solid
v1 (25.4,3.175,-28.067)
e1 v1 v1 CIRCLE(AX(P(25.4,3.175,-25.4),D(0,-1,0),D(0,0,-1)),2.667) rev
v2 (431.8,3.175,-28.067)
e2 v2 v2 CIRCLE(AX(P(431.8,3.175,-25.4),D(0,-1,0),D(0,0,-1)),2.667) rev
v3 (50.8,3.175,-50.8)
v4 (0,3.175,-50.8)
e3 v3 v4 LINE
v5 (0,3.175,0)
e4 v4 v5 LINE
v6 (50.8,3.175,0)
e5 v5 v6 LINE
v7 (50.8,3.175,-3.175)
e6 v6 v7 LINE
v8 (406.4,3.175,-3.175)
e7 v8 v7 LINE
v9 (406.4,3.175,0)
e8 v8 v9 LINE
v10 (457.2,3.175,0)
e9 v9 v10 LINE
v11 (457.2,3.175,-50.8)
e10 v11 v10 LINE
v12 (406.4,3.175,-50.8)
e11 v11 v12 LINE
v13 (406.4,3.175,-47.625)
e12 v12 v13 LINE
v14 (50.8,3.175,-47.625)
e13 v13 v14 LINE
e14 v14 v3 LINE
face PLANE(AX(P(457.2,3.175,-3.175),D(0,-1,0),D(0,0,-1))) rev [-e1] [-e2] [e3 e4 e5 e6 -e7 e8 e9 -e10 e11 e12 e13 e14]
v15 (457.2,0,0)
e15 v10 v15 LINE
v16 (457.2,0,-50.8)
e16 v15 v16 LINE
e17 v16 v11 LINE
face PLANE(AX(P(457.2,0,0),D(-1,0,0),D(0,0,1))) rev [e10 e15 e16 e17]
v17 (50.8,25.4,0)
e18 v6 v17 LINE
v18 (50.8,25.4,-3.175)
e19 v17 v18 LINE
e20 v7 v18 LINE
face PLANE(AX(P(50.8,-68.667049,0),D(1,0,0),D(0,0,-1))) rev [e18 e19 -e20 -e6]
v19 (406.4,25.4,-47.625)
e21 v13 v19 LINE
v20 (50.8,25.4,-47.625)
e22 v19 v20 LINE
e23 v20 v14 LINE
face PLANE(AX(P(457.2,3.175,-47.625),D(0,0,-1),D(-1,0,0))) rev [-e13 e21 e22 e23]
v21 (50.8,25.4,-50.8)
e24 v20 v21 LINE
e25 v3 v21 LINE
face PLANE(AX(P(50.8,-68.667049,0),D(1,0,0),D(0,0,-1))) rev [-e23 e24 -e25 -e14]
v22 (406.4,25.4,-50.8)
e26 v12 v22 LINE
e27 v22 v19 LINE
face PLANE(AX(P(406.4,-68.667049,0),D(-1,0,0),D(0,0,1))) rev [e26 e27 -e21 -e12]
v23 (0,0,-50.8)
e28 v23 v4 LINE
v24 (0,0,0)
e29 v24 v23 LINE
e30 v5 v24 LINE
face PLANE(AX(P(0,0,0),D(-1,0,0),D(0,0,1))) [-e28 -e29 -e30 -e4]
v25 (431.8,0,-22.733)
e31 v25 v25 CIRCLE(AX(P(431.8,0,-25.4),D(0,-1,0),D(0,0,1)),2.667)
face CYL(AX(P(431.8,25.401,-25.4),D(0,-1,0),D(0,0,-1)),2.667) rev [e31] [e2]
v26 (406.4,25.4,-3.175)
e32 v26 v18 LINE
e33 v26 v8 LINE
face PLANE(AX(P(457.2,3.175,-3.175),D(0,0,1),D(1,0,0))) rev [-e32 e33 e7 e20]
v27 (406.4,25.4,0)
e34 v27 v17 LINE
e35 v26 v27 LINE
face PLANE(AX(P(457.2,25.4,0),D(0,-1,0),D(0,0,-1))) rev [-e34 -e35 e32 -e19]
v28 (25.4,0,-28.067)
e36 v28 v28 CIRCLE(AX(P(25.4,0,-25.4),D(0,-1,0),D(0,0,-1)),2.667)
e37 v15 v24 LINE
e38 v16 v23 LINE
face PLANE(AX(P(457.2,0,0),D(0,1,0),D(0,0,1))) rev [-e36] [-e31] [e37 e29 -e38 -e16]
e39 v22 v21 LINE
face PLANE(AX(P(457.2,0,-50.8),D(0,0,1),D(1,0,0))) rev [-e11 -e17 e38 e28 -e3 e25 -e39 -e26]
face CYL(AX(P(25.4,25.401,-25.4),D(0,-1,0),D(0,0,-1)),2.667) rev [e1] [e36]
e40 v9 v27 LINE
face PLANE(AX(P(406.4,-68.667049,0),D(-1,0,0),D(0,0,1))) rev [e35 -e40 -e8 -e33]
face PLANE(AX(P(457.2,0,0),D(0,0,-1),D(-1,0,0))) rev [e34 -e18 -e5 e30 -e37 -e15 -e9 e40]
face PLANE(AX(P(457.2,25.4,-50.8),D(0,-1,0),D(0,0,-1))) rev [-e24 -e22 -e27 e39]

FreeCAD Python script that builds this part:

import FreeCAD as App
import Part
import Sketcher
Q = App.Units.Quantity


def add_polygon(sketch, points):
    """Adds a closed chain of lines whose ends are joined by coincident constraints."""
    first, n = sketch.GeometryCount, len(points)
    for a, b in zip(points, points[1:] + points[:1]):
        sketch.addGeometry(Part.LineSegment(App.Vector(*a, 0), App.Vector(*b, 0)), False)
    for i in range(n):
        sketch.addConstraint(Sketcher.Constraint("Coincident", first + i, 2, first + (i + 1) % n, 1))

doc = App.newDocument("Part")
body = doc.addObject("PartDesign::Body", "Body")

# Sketch on YZ plane
sketch1 = body.newObject("Sketcher::SketchObject", "Sketch")
sketch1.AttachmentSupport = (doc.getObject("YZ_Plane"), [""])
sketch1.MapMode = "FlatFace"
add_polygon(sketch1, [(3.175, -3.175), (25.4, -3.175), (25.4, 0), (0, 0), (0, -50.8), (25.4, -50.8), (25.4, -47.625), (3.175, -47.625)])  # lines 0-7
sketch1.addConstraint([
    Sketcher.Constraint("Horizontal", 0),
    Sketcher.Constraint("Vertical", 1),
    Sketcher.Constraint("Horizontal", 2),
    Sketcher.Constraint("Vertical", 3),
    Sketcher.Constraint("Horizontal", 4),
    Sketcher.Constraint("Vertical", 5),
    Sketcher.Constraint("Horizontal", 6),
    Sketcher.Constraint("Vertical", 7),
    Sketcher.Constraint("Coincident", 2, 2, -1, 1),
    Sketcher.Constraint("Vertical", 1, 2, 4, 2),
    Sketcher.Constraint("Equal", 1, 5),
    Sketcher.Constraint("DistanceX", 2, 2, 2, 1, Q("1 in")),
    Sketcher.Constraint("DistanceY", 3, 2, 3, 1, Q("2 in")),
    Sketcher.Constraint("DistanceY", 7, 1, 7, 2, Q("1.75 in")),
    Sketcher.Constraint("DistanceX", 0, 1, 0, 2, Q("0.875 in")),
])
pad1 = body.newObject("PartDesign::Pad", "Pad")
pad1.Profile = sketch1
pad1.Length = Q("18 in")

# Sketch on XZ plane
sketch2 = body.newObject("Sketcher::SketchObject", "Sketch001")
sketch2.AttachmentSupport = (doc.getObject("XZ_Plane"), [""])
sketch2.MapMode = "FlatFace"
sketch2.AttachmentOffset = App.Placement(App.Vector(0, 0, -1 * 25.4), App.Rotation())
add_polygon(sketch2, [(0, -50.8), (0, 0), (50.8, 0), (50.8, -50.8)])  # lines 0-3
add_polygon(sketch2, [(406.4, -50.8), (406.4, 0), (457.2, 0), (457.2, -50.8)])  # lines 4-7
sketch2.addConstraint([
    Sketcher.Constraint("Vertical", 0),
    Sketcher.Constraint("Horizontal", 1),
    Sketcher.Constraint("Vertical", 2),
    Sketcher.Constraint("Horizontal", 3),
    Sketcher.Constraint("Vertical", 4),
    Sketcher.Constraint("Horizontal", 5),
    Sketcher.Constraint("Vertical", 6),
    Sketcher.Constraint("Horizontal", 7),
    Sketcher.Constraint("Coincident", 0, 2, -1, 1),
    Sketcher.Constraint("PointOnObject", 4, 2, -1),
    Sketcher.Constraint("Horizontal", 3, 2, 6, 2),
    Sketcher.Constraint("Equal", 3, 5),
    Sketcher.Constraint("Equal", 7, 0),
    Sketcher.Constraint("DistanceX", 1, 1, 1, 2, Q("2 in")),
    Sketcher.Constraint("DistanceX", -1, 1, 4, 2, Q("16 in")),
])
pocket1 = body.newObject("PartDesign::Pocket", "Pocket")
pocket1.Profile = sketch2
pocket1.Length = Q("0.875 in")
pocket1.Reversed = True

# Sketch on XZ plane
sketch3 = body.newObject("Sketcher::SketchObject", "Sketch002")
sketch3.AttachmentSupport = (doc.getObject("XZ_Plane"), [""])
sketch3.MapMode = "FlatFace"
sketch3.addGeometry(Part.Circle(App.Vector(25.4, -25.4, 0), App.Vector(0, 0, 1), 2.667), False)
sketch3.addConstraint([
    Sketcher.Constraint("Diameter", 0, Q("0.21 in")),
    Sketcher.Constraint("DistanceX", -1, 1, 0, 3, Q("1 in")),
    Sketcher.Constraint("DistanceY", 0, 3, -1, 1, Q("1 in")),
])
pocket2 = body.newObject("PartDesign::Pocket", "Pocket001")
pocket2.Profile = sketch3
pocket2.Type = "UpToFirst"

# Sketch on XZ plane
sketch4 = body.newObject("Sketcher::SketchObject", "Sketch003")
sketch4.AttachmentSupport = (doc.getObject("XZ_Plane"), [""])
sketch4.MapMode = "FlatFace"
sketch4.addGeometry(Part.Circle(App.Vector(431.8, -25.4, 0), App.Vector(0, 0, 1), 2.667), False)
sketch4.addConstraint([
    Sketcher.Constraint("Diameter", 0, Q("0.21 in")),
    Sketcher.Constraint("DistanceX", -1, 1, 0, 3, Q("17 in")),
    Sketcher.Constraint("DistanceY", 0, 3, -1, 1, Q("1 in")),
])
pocket3 = body.newObject("PartDesign::Pocket", "Pocket002")
pocket3.Profile = sketch4
pocket3.Type = "UpToFirst"

doc.recompute()
